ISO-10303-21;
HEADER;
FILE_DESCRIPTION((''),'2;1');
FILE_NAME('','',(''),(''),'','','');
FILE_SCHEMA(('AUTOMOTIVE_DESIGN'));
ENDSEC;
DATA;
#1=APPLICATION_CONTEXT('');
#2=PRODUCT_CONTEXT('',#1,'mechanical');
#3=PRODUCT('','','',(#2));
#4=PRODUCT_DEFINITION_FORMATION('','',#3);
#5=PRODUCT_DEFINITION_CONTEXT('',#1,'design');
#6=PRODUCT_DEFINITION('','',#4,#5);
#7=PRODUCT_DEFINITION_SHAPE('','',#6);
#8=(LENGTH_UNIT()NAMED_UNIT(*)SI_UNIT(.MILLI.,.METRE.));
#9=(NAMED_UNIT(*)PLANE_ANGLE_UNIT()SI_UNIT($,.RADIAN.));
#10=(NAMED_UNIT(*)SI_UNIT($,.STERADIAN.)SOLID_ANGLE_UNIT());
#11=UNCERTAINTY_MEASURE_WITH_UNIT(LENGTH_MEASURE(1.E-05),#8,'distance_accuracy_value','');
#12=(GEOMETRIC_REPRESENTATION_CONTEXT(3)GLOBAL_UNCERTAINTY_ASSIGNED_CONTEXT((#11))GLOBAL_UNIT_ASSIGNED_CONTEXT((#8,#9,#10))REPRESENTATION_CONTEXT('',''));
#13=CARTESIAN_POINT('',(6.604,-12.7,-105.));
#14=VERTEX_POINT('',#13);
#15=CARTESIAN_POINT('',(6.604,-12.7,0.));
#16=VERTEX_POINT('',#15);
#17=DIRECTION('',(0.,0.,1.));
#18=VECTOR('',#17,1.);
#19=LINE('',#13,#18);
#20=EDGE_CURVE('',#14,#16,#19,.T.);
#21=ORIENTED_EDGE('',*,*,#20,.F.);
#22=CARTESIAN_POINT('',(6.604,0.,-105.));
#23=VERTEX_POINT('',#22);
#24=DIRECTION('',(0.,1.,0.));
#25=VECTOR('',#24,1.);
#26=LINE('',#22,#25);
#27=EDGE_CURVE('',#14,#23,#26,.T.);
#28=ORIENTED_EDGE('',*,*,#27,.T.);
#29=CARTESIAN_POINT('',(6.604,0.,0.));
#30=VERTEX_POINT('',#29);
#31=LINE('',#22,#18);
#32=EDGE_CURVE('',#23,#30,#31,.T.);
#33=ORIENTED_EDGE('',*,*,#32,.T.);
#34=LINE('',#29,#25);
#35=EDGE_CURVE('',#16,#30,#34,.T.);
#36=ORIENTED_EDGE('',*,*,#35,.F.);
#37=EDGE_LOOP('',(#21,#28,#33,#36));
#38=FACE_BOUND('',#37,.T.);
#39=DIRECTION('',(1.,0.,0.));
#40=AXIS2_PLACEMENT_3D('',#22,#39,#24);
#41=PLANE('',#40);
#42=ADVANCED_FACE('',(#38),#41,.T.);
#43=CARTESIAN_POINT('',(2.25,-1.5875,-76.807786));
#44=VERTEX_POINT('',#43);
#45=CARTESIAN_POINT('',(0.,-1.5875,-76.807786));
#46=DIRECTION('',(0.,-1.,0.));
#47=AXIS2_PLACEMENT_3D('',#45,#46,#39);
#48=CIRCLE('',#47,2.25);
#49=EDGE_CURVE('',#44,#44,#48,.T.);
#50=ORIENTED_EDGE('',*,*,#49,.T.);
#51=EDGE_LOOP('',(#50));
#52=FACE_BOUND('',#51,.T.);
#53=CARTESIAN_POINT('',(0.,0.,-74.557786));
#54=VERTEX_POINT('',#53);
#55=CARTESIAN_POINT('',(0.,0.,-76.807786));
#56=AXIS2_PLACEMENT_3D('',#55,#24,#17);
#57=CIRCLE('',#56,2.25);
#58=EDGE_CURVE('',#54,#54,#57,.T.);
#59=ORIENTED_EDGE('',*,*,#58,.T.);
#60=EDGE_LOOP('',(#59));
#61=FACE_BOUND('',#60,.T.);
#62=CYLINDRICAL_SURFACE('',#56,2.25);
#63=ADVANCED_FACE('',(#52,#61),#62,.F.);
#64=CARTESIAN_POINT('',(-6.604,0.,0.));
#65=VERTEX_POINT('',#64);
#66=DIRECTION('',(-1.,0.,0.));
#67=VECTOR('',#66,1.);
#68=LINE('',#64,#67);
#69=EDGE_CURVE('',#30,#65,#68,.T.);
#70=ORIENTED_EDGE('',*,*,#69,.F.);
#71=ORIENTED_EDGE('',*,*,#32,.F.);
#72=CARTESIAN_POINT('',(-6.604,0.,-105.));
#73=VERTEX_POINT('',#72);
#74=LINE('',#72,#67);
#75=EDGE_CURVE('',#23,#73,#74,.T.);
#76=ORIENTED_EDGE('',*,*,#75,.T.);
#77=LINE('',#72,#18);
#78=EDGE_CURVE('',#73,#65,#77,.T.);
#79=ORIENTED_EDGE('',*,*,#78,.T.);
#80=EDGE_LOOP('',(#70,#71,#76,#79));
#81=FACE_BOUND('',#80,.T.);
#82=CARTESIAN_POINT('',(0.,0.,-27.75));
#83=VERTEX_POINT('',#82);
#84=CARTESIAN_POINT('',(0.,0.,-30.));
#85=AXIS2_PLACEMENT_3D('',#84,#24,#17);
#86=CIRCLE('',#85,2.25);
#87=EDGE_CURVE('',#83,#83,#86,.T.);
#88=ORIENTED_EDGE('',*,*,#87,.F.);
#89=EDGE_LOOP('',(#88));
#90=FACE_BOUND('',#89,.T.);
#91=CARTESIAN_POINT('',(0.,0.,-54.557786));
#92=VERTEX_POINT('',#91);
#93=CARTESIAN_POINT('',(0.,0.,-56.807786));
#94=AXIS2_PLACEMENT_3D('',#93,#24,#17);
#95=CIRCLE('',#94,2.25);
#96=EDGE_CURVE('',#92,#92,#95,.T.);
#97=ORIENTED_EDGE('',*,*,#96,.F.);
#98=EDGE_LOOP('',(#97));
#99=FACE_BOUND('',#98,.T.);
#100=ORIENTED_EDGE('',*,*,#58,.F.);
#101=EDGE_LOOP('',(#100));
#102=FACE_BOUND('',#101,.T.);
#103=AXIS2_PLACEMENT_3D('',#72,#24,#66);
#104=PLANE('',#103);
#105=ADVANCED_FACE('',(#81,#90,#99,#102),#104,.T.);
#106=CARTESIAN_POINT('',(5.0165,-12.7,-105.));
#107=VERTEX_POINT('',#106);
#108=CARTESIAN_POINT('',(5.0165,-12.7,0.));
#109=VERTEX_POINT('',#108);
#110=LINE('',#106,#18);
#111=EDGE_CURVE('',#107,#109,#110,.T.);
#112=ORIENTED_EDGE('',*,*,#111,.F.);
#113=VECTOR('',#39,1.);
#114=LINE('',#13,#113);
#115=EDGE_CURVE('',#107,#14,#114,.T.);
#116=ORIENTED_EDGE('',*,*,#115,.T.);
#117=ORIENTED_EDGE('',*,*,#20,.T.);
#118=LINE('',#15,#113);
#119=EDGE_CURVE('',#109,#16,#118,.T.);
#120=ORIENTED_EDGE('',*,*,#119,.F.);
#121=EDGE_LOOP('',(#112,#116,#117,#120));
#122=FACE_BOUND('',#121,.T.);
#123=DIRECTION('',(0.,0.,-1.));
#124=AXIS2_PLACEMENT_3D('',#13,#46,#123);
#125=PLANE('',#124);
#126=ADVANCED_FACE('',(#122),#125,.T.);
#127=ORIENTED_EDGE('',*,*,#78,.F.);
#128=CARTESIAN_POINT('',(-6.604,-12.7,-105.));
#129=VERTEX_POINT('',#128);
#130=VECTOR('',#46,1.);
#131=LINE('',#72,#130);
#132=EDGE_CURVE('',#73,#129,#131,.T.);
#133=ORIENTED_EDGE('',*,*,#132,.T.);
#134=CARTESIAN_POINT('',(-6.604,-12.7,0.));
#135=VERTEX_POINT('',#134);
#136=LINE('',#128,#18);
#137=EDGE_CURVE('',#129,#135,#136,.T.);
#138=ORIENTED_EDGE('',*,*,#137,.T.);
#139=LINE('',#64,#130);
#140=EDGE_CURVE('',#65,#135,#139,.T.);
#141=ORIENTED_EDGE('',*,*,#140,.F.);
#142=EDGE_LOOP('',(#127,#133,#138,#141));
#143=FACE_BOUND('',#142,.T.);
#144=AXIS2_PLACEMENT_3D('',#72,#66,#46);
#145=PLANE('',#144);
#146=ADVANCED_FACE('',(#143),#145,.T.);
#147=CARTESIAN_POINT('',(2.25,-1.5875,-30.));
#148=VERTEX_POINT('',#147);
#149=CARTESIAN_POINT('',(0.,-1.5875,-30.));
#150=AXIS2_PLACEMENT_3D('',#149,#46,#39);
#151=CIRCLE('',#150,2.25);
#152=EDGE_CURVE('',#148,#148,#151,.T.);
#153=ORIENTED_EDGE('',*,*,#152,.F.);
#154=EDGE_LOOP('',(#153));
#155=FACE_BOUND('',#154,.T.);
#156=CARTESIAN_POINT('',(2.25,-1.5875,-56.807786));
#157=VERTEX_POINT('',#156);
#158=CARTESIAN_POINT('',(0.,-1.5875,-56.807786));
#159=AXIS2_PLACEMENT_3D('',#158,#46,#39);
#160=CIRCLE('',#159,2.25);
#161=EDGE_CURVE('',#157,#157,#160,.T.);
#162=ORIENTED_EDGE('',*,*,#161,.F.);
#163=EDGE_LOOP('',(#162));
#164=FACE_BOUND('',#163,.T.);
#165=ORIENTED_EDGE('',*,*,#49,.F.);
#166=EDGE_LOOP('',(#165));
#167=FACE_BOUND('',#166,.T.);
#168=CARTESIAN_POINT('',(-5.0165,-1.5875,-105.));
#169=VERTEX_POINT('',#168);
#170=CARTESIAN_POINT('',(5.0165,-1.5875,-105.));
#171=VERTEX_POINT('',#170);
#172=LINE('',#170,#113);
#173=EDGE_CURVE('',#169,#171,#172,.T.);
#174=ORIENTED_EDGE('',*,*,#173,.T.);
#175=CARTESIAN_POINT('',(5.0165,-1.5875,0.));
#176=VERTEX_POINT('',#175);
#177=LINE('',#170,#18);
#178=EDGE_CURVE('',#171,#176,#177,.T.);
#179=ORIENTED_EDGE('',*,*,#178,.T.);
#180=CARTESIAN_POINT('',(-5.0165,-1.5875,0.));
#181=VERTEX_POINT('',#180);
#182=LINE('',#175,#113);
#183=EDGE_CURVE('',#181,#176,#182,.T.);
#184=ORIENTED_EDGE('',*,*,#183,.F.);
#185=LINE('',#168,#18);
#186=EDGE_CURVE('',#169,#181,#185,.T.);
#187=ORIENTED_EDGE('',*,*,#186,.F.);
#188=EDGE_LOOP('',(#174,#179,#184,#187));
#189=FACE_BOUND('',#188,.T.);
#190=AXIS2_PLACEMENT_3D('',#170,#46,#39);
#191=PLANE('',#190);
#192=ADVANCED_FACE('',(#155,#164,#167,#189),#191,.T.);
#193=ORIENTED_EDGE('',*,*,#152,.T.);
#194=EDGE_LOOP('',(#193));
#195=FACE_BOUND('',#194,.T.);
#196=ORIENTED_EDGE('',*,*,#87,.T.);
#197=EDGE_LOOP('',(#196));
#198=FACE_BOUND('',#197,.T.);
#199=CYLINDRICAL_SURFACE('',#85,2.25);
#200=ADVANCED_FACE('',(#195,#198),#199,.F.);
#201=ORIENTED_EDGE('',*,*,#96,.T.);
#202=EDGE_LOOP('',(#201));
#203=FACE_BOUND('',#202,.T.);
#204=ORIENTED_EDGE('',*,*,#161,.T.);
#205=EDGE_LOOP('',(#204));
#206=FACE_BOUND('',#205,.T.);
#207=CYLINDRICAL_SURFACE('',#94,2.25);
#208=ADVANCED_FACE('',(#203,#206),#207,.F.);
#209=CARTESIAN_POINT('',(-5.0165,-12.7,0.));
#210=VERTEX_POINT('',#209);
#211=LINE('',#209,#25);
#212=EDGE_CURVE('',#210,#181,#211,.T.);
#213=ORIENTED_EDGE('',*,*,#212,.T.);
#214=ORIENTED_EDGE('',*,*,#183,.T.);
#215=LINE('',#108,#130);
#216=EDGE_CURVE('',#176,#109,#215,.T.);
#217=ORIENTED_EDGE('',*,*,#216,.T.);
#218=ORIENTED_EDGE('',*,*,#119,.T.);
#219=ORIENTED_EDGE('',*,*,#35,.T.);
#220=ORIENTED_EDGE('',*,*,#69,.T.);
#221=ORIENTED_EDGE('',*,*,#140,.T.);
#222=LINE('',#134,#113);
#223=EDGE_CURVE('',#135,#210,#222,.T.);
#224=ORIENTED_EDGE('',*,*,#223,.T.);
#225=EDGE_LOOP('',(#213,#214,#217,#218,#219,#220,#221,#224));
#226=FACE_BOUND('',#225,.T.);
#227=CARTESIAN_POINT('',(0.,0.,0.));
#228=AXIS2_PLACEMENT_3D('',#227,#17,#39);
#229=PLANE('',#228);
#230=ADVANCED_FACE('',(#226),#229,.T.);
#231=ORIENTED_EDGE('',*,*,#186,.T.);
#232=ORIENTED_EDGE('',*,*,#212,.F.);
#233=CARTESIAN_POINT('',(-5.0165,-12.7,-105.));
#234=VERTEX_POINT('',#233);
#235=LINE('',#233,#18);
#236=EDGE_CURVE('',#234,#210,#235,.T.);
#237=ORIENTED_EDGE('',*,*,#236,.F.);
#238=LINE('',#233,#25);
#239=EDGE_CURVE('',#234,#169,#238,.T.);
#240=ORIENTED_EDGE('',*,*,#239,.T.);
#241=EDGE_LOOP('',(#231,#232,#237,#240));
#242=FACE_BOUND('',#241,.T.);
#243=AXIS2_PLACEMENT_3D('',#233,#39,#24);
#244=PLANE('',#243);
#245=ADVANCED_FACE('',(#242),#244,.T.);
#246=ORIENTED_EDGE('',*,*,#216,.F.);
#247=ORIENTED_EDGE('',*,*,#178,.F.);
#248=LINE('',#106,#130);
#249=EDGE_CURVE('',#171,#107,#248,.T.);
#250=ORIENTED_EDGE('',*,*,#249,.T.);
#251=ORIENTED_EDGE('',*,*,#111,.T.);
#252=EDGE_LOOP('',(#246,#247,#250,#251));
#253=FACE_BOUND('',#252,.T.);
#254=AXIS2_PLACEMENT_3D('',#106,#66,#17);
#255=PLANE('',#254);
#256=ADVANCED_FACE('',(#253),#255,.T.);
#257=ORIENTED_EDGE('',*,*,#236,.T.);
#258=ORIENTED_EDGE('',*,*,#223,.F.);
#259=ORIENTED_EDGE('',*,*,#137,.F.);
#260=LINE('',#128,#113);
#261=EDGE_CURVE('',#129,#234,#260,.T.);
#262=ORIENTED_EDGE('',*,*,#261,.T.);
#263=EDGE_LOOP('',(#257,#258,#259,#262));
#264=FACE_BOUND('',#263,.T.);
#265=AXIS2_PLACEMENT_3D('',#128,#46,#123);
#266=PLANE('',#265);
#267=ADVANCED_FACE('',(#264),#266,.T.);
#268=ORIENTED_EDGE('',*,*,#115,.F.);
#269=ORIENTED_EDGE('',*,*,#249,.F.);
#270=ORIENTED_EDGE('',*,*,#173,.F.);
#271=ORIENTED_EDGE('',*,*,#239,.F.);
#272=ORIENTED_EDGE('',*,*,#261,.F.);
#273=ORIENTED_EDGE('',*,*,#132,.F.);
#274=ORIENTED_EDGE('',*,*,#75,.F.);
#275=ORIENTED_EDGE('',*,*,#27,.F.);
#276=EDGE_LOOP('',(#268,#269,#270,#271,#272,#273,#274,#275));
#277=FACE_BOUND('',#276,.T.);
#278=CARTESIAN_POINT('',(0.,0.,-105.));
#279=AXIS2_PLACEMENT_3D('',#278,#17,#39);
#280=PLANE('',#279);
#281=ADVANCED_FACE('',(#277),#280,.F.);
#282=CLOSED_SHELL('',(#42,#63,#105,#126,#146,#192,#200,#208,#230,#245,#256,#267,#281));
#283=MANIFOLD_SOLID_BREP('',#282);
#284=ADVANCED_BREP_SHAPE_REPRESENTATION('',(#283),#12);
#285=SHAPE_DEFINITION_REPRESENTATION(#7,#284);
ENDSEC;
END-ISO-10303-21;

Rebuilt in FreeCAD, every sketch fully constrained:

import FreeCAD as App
import Part
import Sketcher

V = App.Vector
Q = App.Units.Quantity

doc = App.newDocument("Part")
params = doc.addObject("Spreadsheet::Sheet", "Params")
for row, (alias, value) in enumerate([
    ("sketch1_height", "0.5 in"),
    ("sketch1_width", "0.52 in"),
    ("sketch1_width2", "0.0625 in"),
    ("sketch1_height2", "0.4375 in"),
    ("pad1_length", "105 mm"),
    ("hole_diameter", "4.5 mm"),
], start=1):
    params.set(f"A{row}", alias)
    params.set(f"B{row}", "=" + value)
    params.setAlias(f"B{row}", alias)

body = doc.addObject("PartDesign::Body", "Body")

# Sketch on XY plane
sketch1 = body.newObject("Sketcher::SketchObject", "Sketch")
sketch1.AttachmentSupport = (doc.getObject("XY_Plane"), [""])
sketch1.MapMode = "FlatFace"
sketch1.addGeometry([
    Part.LineSegment(V(6.6, 0, 0), V(-6.6, 0, 0)),  # 0
    Part.LineSegment(V(-6.6, 0, 0), V(-6.6, -12.7, 0)),  # 1
    Part.LineSegment(V(-6.6, -12.7, 0), V(-5, -12.7, 0)),  # 2
    Part.LineSegment(V(-5, -12.7, 0), V(-5, -1.6, 0)),  # 3
    Part.LineSegment(V(-5, -1.6, 0), V(5, -1.6, 0)),  # 4
    Part.LineSegment(V(5, -1.6, 0), V(5, -12.7, 0)),  # 5
    Part.LineSegment(V(5, -12.7, 0), V(6.6, -12.7, 0)),  # 6
    Part.LineSegment(V(6.6, -12.7, 0), V(6.6, 0, 0)),  # 7
], False)
sketch1.addConstraint([
    Sketcher.Constraint("Coincident", 0, 2, 1, 1),
    Sketcher.Constraint("Coincident", 1, 2, 2, 1),
    Sketcher.Constraint("Coincident", 2, 2, 3, 1),
    Sketcher.Constraint("Coincident", 3, 2, 4, 1),
    Sketcher.Constraint("Coincident", 4, 2, 5, 1),
    Sketcher.Constraint("Coincident", 5, 2, 6, 1),
    Sketcher.Constraint("Coincident", 6, 2, 7, 1),
    Sketcher.Constraint("Coincident", 7, 2, 0, 1),
    Sketcher.Constraint("Horizontal", 0),
    Sketcher.Constraint("Vertical", 1),
    Sketcher.Constraint("Horizontal", 2),
    Sketcher.Constraint("Vertical", 3),
    Sketcher.Constraint("Horizontal", 4),
    Sketcher.Constraint("Vertical", 5),
    Sketcher.Constraint("Horizontal", 6),
    Sketcher.Constraint("Vertical", 7),
    Sketcher.Constraint("Symmetric", 0, 2, 7, 2, -1, 1),
    Sketcher.Constraint("Symmetric", 2, 2, 5, 2, -2),
    Sketcher.Constraint("DistanceY", 1, 2, 1, 1, Q("0.5 in")),
    Sketcher.Constraint("DistanceX", 0, 2, 0, 1, Q("0.52 in")),
    Sketcher.Constraint("DistanceX", 2, 1, 2, 2, Q("0.0625 in")),
    Sketcher.Constraint("DistanceY", 3, 1, 3, 2, Q("0.4375 in")),
])
sketch1.setExpression("Constraints[18]", "Params.sketch1_height")
sketch1.setExpression("Constraints[19]", "Params.sketch1_width")
sketch1.setExpression("Constraints[20]", "Params.sketch1_width2")
sketch1.setExpression("Constraints[21]", "Params.sketch1_height2")
pad1 = body.newObject("PartDesign::Pad", "Pad")
pad1.Profile = sketch1
pad1.setExpression("Length", "Params.pad1_length")
pad1.Reversed = True

# Sketch on XZ plane
sketch2 = body.newObject("Sketcher::SketchObject", "Sketch001")
sketch2.AttachmentSupport = (doc.getObject("XZ_Plane"), [""])
sketch2.MapMode = "FlatFace"
sketch2.addGeometry([
    Part.Circle(V(0, -56.8, 0), V(0, 0, 1), 2.2),
    Part.Circle(V(0, -30, 0), V(0, 0, 1), 2.2),
    Part.Circle(V(0, -76.8, 0), V(0, 0, 1), 2.2),
], False)
sketch2.addConstraint([
    Sketcher.Constraint("Equal", 0, 1),
    Sketcher.Constraint("Equal", 1, 2),
    Sketcher.Constraint("PointOnObject", 0, 3, -2),
    Sketcher.Constraint("PointOnObject", 1, 3, -2),
    Sketcher.Constraint("PointOnObject", 2, 3, -2),
    Sketcher.Constraint("Diameter", 0, Q("4.5 mm")),
    Sketcher.Constraint("DistanceY", 1, 3, -1, 1, Q("30 mm")),
    Sketcher.Constraint("DistanceY", 2, 3, 0, 3, Q("20 mm")),
    Sketcher.Constraint("DistanceY", 0, 3, -1, 1, Q("56.807786 mm")),
])
doc.recompute()
hole = body.newObject("PartDesign::Hole", "Hole")
hole.Profile = sketch2
hole.ThreadType = "None"
hole.setExpression("Diameter", "Params.hole_diameter")
hole.DepthType = "ThroughAll"
hole.Reversed = True

doc.recompute()
